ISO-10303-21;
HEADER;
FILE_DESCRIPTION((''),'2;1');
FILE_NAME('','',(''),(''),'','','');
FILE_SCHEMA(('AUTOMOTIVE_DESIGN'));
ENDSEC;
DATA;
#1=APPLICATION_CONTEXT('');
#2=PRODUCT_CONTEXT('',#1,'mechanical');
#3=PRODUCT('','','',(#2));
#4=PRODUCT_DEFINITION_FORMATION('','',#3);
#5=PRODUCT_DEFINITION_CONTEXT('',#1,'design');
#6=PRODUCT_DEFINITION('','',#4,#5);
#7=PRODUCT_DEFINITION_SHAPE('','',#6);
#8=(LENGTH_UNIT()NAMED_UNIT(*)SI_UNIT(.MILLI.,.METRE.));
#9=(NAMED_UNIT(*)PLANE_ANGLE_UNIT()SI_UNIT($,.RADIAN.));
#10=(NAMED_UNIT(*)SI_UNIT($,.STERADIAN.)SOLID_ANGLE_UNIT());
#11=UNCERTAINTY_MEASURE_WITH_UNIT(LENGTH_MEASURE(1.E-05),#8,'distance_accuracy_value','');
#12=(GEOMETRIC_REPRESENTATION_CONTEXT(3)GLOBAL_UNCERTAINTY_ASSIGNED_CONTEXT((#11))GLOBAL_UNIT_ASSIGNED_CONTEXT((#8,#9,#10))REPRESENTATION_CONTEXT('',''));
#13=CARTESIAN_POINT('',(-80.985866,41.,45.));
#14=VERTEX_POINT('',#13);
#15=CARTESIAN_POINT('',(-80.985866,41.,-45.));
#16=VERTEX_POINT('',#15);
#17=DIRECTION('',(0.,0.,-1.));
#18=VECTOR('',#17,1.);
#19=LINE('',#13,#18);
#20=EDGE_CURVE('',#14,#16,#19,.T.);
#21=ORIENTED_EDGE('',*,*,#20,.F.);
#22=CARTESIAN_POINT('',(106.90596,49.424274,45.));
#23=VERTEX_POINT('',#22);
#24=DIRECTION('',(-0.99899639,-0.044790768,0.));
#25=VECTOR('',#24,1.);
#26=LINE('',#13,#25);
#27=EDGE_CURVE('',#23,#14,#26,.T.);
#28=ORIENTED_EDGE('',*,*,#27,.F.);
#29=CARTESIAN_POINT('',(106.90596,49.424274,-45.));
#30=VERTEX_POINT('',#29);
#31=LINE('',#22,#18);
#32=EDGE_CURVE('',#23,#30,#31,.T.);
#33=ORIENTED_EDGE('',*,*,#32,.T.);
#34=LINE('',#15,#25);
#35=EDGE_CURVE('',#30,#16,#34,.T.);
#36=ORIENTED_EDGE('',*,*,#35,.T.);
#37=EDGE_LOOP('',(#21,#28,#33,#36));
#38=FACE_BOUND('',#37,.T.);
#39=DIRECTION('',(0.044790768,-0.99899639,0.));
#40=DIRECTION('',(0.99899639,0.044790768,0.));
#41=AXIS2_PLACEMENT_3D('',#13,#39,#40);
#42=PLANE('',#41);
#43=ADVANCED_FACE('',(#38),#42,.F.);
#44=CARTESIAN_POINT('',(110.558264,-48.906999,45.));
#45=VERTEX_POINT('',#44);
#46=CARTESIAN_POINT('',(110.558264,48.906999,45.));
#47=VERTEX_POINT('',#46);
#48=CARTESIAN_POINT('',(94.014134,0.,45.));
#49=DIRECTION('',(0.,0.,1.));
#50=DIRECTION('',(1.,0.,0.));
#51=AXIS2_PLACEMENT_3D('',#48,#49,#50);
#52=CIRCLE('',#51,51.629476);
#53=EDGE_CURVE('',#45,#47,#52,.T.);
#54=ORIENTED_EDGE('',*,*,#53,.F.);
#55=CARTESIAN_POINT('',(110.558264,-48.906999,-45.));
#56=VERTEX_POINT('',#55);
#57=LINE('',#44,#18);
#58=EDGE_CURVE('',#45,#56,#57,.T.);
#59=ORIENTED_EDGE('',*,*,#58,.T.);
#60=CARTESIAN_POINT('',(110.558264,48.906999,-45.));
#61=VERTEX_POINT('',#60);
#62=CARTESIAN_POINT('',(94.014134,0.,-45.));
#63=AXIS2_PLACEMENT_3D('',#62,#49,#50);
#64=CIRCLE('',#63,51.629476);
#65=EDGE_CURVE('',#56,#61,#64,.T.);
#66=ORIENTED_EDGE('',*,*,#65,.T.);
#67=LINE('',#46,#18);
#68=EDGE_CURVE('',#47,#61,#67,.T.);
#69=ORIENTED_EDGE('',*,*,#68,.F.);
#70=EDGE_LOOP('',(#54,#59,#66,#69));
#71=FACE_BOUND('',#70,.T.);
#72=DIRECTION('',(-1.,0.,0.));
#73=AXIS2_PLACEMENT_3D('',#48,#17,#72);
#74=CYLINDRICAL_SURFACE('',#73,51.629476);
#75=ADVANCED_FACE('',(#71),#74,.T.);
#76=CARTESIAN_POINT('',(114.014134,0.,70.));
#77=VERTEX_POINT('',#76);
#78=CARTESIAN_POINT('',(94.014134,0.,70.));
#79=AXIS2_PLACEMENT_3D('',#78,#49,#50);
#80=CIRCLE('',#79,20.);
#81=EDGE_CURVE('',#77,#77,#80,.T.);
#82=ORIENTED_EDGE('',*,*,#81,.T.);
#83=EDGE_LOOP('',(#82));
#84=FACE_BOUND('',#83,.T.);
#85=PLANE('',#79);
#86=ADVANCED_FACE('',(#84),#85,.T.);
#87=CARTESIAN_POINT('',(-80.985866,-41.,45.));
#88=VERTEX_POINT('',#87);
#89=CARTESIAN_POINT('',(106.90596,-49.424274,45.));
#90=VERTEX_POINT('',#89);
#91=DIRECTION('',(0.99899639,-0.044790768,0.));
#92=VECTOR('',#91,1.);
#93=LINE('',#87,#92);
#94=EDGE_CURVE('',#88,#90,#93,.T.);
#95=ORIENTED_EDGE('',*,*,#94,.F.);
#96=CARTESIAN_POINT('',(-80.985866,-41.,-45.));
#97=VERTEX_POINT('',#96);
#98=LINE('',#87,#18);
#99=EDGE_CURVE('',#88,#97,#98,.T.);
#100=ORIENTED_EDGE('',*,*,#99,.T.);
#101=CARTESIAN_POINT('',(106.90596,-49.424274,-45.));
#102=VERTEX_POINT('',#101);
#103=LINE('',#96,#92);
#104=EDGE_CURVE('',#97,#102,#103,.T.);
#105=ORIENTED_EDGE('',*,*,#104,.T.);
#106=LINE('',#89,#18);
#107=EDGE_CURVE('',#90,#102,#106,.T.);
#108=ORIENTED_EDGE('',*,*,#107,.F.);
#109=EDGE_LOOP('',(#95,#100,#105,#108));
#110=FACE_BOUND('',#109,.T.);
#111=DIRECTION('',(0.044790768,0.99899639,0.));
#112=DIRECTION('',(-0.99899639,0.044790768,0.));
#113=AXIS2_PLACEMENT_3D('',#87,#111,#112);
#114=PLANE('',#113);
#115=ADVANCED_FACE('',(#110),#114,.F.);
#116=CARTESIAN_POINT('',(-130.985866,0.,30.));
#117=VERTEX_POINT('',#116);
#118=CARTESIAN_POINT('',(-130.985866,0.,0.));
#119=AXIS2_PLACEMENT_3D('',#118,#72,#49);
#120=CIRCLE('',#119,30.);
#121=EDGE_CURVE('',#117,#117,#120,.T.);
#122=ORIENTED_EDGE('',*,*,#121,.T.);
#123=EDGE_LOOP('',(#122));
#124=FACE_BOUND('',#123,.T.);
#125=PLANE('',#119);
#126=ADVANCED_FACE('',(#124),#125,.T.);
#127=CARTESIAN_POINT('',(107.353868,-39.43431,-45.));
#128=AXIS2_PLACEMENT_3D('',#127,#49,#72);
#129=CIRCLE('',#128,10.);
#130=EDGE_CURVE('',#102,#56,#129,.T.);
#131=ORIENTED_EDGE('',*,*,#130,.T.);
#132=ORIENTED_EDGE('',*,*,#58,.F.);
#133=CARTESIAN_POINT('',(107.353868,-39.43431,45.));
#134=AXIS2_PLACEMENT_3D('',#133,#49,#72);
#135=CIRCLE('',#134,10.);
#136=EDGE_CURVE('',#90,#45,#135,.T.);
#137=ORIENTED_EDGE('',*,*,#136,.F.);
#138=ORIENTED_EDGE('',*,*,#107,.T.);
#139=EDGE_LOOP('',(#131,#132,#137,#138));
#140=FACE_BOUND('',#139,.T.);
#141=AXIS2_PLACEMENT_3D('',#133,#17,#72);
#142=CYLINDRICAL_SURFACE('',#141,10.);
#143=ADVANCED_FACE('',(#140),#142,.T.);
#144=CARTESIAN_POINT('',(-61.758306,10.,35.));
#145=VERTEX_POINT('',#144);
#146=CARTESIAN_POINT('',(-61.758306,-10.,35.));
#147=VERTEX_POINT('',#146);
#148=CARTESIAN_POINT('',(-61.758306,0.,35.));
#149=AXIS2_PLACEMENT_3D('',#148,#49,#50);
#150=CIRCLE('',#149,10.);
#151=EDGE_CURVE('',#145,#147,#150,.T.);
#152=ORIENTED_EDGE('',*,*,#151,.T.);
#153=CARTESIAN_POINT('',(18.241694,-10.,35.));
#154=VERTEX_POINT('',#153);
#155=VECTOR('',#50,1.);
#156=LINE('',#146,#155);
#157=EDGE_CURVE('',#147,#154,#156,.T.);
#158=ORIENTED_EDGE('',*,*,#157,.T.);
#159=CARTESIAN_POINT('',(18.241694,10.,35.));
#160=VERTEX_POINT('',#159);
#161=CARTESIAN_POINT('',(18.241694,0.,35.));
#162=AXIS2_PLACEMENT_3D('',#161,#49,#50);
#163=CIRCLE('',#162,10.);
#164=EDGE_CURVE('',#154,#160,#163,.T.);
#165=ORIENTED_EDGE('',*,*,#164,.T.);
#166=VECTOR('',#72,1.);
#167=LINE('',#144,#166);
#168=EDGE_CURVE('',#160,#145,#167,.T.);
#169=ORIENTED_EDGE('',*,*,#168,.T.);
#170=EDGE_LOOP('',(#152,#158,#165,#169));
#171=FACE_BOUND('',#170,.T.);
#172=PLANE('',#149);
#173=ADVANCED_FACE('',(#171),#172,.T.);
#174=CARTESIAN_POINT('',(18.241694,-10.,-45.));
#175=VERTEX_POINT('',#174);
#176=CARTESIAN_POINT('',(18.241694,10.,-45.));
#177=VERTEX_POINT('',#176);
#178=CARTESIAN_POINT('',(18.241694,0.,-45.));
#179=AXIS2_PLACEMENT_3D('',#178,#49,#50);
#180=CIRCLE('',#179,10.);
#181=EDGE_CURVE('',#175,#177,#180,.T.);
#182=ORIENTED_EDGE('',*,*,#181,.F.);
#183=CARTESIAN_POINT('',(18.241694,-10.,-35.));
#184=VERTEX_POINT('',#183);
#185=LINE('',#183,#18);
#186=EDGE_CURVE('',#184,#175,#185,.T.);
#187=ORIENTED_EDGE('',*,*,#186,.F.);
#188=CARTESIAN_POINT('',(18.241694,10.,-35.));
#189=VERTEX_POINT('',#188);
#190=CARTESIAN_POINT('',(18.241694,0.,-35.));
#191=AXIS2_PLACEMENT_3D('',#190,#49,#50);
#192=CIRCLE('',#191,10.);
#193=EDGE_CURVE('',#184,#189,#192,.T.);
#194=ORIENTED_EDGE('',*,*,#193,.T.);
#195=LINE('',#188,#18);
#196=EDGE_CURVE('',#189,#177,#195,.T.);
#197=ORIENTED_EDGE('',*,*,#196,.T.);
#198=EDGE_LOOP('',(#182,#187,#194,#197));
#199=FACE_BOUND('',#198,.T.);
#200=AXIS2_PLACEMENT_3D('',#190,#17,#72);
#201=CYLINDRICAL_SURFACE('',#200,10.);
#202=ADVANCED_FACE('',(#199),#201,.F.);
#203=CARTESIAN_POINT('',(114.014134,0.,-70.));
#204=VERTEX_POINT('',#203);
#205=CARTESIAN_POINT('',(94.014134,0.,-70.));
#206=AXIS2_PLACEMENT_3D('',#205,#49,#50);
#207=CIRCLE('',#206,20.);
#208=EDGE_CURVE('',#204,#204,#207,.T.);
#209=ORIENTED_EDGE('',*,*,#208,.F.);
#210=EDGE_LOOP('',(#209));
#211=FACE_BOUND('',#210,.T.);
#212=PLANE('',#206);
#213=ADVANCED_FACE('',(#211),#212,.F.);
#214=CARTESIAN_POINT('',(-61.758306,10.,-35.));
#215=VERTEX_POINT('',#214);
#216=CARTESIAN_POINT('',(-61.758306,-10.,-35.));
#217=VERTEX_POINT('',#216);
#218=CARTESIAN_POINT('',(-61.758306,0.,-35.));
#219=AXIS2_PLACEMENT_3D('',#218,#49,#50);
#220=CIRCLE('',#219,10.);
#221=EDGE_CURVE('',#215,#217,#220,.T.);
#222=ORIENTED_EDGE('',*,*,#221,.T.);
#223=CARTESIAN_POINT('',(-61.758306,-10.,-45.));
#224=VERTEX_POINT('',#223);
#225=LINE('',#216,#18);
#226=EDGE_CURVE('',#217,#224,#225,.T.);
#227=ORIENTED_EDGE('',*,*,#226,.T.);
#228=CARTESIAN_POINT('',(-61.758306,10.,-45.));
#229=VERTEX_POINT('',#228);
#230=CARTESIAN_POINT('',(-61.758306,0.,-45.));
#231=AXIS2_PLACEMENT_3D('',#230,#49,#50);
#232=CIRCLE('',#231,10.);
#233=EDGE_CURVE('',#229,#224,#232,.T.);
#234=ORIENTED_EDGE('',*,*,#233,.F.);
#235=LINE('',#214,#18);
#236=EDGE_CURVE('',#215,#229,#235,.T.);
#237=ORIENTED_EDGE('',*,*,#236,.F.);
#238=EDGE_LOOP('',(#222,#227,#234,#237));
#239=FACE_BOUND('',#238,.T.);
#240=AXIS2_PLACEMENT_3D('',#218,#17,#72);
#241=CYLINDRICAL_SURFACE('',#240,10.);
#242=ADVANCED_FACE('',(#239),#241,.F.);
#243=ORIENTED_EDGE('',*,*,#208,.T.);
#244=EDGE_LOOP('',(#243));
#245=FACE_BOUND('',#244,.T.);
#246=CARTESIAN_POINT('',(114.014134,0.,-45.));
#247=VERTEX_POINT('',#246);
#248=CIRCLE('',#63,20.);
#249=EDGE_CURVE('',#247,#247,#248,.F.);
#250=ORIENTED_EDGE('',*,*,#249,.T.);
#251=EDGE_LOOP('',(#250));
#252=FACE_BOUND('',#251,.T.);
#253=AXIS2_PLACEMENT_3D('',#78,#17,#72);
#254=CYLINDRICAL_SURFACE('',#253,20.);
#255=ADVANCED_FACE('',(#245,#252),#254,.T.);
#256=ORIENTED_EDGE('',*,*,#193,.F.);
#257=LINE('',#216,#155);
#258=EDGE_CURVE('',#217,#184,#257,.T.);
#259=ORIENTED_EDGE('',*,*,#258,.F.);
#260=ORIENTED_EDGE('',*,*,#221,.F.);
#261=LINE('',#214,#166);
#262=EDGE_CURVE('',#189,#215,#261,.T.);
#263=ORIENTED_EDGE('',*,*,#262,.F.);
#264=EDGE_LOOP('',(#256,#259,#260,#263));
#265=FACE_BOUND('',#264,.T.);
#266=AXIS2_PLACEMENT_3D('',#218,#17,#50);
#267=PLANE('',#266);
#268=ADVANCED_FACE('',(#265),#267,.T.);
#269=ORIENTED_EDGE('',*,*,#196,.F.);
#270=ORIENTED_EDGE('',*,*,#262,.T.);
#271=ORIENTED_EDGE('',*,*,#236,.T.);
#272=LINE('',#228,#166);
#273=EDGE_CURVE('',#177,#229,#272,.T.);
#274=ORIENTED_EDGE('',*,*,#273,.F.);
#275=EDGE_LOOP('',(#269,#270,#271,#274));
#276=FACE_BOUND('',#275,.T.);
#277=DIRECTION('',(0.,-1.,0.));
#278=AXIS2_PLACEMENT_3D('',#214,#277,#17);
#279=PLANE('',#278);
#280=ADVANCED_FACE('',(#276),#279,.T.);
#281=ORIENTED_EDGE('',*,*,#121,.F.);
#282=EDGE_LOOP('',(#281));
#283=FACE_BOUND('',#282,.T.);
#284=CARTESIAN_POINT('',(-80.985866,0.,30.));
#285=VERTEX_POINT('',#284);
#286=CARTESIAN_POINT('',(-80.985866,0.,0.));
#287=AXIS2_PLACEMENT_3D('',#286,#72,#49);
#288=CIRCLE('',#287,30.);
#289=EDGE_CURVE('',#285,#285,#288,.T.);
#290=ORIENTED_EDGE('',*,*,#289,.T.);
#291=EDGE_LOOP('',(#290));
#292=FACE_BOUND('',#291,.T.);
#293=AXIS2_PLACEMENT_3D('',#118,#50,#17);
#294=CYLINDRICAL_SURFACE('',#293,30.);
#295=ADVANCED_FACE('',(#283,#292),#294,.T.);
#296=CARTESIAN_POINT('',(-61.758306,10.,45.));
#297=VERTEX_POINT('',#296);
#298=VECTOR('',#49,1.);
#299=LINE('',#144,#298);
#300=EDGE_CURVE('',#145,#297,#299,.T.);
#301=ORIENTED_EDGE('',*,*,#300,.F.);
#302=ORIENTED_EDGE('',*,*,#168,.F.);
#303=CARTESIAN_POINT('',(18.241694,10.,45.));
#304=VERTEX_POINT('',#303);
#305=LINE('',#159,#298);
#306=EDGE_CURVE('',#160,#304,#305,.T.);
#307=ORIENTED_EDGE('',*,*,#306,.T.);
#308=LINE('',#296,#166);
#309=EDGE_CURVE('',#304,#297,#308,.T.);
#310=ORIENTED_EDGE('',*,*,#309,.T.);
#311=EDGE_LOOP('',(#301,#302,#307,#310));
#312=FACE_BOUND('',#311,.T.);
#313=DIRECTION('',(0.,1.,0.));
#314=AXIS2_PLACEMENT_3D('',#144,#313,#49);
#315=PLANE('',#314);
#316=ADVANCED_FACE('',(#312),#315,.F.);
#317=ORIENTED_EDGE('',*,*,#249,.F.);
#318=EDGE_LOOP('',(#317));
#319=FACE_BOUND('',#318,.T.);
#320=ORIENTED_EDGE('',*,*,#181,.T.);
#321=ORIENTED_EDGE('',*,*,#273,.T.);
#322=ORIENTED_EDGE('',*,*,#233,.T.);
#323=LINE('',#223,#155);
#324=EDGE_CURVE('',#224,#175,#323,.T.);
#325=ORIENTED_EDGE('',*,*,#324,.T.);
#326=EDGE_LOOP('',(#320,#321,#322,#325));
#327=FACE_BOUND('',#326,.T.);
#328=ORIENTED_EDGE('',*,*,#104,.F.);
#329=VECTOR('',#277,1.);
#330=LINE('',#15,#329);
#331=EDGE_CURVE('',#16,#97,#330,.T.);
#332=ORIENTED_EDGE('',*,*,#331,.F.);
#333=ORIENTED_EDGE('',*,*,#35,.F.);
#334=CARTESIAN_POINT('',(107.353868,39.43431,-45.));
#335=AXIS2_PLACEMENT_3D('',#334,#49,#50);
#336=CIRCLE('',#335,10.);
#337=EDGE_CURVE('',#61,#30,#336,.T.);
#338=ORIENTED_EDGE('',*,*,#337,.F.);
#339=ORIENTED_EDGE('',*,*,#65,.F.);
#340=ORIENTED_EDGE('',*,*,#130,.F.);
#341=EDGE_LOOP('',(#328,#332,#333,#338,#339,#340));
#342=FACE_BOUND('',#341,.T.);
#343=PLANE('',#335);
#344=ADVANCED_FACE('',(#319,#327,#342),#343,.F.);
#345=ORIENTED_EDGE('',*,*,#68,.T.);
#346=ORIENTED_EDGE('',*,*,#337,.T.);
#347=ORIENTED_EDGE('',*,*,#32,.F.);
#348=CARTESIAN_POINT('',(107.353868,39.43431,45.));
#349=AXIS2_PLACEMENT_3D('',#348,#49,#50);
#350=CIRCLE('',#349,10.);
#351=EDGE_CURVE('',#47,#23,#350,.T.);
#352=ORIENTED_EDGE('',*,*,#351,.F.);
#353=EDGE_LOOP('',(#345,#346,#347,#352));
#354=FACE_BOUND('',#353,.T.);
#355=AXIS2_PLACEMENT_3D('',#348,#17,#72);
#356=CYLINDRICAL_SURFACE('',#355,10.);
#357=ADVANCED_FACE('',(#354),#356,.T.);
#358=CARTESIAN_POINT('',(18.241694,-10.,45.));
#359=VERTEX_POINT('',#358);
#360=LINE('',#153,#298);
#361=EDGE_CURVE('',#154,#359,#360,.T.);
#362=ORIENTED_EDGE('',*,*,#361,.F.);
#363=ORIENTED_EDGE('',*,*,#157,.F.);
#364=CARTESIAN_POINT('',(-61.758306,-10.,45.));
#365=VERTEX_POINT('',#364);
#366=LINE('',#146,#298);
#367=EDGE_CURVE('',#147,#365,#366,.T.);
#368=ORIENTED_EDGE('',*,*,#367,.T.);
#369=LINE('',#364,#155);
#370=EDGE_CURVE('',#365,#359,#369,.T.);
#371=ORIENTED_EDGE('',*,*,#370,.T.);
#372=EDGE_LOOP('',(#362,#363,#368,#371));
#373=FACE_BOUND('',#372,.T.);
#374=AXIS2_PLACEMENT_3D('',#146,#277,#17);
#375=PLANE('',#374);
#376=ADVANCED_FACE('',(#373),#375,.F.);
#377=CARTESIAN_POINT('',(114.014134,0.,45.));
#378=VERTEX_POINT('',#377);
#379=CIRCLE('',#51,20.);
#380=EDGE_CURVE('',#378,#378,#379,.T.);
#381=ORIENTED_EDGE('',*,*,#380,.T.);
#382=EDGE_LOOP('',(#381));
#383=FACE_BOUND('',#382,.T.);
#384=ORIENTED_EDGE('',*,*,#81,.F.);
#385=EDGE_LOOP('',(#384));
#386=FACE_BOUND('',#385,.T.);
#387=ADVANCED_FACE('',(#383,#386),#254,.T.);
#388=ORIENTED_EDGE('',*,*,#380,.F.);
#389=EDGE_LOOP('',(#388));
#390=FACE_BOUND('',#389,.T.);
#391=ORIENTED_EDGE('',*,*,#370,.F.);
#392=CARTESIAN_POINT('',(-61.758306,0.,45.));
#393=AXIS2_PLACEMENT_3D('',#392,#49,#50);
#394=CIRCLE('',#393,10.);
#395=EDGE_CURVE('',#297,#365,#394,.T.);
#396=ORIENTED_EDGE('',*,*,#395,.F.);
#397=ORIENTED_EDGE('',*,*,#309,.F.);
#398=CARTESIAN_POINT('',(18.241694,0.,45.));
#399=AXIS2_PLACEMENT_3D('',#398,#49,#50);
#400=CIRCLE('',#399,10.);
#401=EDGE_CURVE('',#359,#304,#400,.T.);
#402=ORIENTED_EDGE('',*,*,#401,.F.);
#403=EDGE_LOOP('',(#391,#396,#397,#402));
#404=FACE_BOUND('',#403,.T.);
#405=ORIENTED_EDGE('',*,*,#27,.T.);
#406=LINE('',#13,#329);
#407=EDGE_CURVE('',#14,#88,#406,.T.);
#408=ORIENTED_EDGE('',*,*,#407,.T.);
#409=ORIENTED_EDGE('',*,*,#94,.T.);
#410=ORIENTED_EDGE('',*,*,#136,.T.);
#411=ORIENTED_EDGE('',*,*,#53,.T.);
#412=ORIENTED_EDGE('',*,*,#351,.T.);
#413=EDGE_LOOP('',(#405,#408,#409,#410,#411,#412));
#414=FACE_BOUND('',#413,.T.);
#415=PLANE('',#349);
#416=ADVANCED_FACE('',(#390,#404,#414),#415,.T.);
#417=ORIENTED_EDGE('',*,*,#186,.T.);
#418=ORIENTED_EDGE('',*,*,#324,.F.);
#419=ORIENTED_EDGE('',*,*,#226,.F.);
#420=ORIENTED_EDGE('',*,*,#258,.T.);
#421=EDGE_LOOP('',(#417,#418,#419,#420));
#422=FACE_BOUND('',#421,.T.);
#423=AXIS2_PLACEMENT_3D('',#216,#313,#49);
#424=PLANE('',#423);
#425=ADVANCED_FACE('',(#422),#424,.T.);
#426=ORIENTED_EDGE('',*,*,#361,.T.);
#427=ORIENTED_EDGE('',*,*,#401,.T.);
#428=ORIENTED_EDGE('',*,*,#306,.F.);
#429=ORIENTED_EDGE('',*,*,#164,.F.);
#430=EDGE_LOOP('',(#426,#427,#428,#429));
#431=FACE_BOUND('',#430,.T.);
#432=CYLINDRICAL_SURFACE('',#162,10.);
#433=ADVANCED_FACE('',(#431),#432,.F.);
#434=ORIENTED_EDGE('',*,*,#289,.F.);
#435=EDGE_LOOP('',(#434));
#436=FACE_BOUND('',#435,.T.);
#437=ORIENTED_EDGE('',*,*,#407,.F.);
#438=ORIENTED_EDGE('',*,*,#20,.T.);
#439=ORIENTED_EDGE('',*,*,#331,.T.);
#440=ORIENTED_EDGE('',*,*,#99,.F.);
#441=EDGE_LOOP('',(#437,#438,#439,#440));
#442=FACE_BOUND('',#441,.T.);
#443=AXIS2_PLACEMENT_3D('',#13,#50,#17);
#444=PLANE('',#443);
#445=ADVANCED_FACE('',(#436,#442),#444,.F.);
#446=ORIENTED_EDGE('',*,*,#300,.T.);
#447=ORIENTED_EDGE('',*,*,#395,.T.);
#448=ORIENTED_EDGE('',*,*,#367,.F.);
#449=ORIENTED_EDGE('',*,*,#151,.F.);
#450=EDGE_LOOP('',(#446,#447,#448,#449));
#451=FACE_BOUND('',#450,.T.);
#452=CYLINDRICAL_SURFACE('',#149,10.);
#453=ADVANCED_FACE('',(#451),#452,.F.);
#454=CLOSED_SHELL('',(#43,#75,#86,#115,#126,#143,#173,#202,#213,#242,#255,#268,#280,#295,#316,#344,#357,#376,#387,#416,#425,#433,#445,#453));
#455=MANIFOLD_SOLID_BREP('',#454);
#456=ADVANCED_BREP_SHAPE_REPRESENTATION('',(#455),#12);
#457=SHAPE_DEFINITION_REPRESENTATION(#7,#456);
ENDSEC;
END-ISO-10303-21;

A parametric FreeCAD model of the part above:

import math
import FreeCAD as App
import Part
import Sketcher

V = App.Vector

doc = App.newDocument("Part")
body = doc.addObject("PartDesign::Body", "Body")

# Sketch on XY plane
sketch1 = body.newObject("Sketcher::SketchObject", "Sketch")
sketch1.AttachmentSupport = (doc.getObject("XY_Plane"), [""])
sketch1.MapMode = "FlatFace"
sketch1.addGeometry(Part.LineSegment(V(-80.985866, 41, 0), V(-80.985866, -41, 0)), False)
sketch1.addGeometry(Part.LineSegment(V(-80.985866, -41, 0), V(106.90596, -49.424274, 0)), False)
sketch1.addGeometry(Part.ArcOfCircle(Part.Circle(V(107.353868, -39.43431, 0), V(0, 0, 1), 10), math.radians(-92.567181), math.radians(-71.310486)), False)
sketch1.addGeometry(Part.ArcOfCircle(Part.Circle(V(94.014134, 0, 0), V(0, 0, 1), 51.629476), math.radians(-71.310486), math.radians(71.310486)), False)
sketch1.addGeometry(Part.ArcOfCircle(Part.Circle(V(107.353868, 39.43431, 0), V(0, 0, 1), 10), math.radians(71.310486), math.radians(92.567181)), False)
sketch1.addGeometry(Part.LineSegment(V(106.90596, 49.424274, 0), V(-80.985866, 41, 0)), False)
sketch1.addGeometry(Part.Circle(V(94.014134, 0, 0), V(0, 0, 1), 20), False)
sketch1.addConstraint(Sketcher.Constraint("Coincident", 0, 2, 1, 1))
sketch1.addConstraint(Sketcher.Constraint("Tangent", 1, 2, 2, 1))
sketch1.addConstraint(Sketcher.Constraint("Tangent", 2, 2, 3, 1))
sketch1.addConstraint(Sketcher.Constraint("Tangent", 3, 2, 4, 1))
sketch1.addConstraint(Sketcher.Constraint("Tangent", 4, 2, 5, 1))
sketch1.addConstraint(Sketcher.Constraint("Coincident", 5, 2, 0, 1))
sketch1.addConstraint(Sketcher.Constraint("Vertical", 0))
sketch1.addConstraint(Sketcher.Constraint("Coincident", 6, 3, 3, 3))
sketch1.addConstraint(Sketcher.Constraint("Equal", 2, 4))
sketch1.addConstraint(Sketcher.Constraint("Symmetric", 2, 3, 4, 3, -1))
sketch1.addConstraint(Sketcher.Constraint("Vertical", 1, 2, 4, 2))
sketch1.addConstraint(Sketcher.Constraint("Diameter", 6, 40.0))
sketch1.addConstraint(Sketcher.Constraint("Radius", 2, 10.0))
sketch1.addConstraint(Sketcher.Constraint("DistanceY", 0, 2, 0, 1, 82.0))
sketch1.addConstraint(Sketcher.Constraint("DistanceX", 0, 2, 3, 3, 175.0))
sketch1.addConstraint(Sketcher.Constraint("DistanceY", 2, 2, -1, 1, 48.906999))
sketch1.addConstraint(Sketcher.Constraint("Radius", 3, 51.629476))
sketch1.addConstraint(Sketcher.Constraint("DistanceX", -1, 1, 2, 3, 107.353868))
pad1 = body.newObject("PartDesign::Pad", "Pad")
pad1.Profile = sketch1
pad1.Length = 90
pad1.Midplane = True

# Sketch on YZ plane
sketch2 = body.newObject("Sketcher::SketchObject", "Sketch001")
sketch2.AttachmentSupport = (doc.getObject("YZ_Plane"), [""])
sketch2.MapMode = "FlatFace"
sketch2.AttachmentOffset = App.Placement(V(0, 0, -80.985866), App.Rotation())
sketch2.addGeometry(Part.Circle(V(0, 0, 0), V(0, 0, 1), 30), False)
sketch2.addConstraint(Sketcher.Constraint("Coincident", 0, 3, -1, 1))
sketch2.addConstraint(Sketcher.Constraint("Diameter", 0, 60.0))
pad2 = body.newObject("PartDesign::Pad", "Pad001")
pad2.Profile = sketch2
pad2.Length = 50
pad2.Reversed = True

# Sketch on XY plane
sketch3 = body.newObject("Sketcher::SketchObject", "Sketch002")
sketch3.AttachmentSupport = (doc.getObject("XY_Plane"), [""])
sketch3.MapMode = "FlatFace"
sketch3.AttachmentOffset = App.Placement(V(0, 0, 45), App.Rotation())
sketch3.addGeometry(Part.Circle(V(94.014134, 0, 0), V(0, 0, 1), 20), False)
sketch3.addConstraint(Sketcher.Constraint("PointOnObject", 0, 3, -1))
sketch3.addConstraint(Sketcher.Constraint("Diameter", 0, 40.0))
sketch3.addConstraint(Sketcher.Constraint("DistanceX", -1, 1, 0, 3, 94.014134))
pad3 = body.newObject("PartDesign::Pad", "Pad002")
pad3.Profile = sketch3
pad3.Type = "TwoLengths"
pad3.Length = 25
pad3.Length2 = 115

# Sketch on XY plane
sketch4 = body.newObject("Sketcher::SketchObject", "Sketch003")
sketch4.AttachmentSupport = (doc.getObject("XY_Plane"), [""])
sketch4.MapMode = "FlatFace"
sketch4.AttachmentOffset = App.Placement(V(0, 0, 45), App.Rotation())
sketch4.addGeometry(Part.LineSegment(V(18.241694, 10, 0), V(-61.758306, 10, 0)), False)
sketch4.addGeometry(Part.ArcOfCircle(Part.Circle(V(-61.758306, 0, 0), V(0, 0, 1), 10), math.radians(90), math.radians(270)), False)
sketch4.addGeometry(Part.LineSegment(V(-61.758306, -10, 0), V(18.241694, -10, 0)), False)
sketch4.addGeometry(Part.ArcOfCircle(Part.Circle(V(18.241694, 0, 0), V(0, 0, 1), 10), math.radians(-90), math.radians(90)), False)
sketch4.addConstraint(Sketcher.Constraint("Tangent", 0, 2, 1, 1))
sketch4.addConstraint(Sketcher.Constraint("Tangent", 1, 2, 2, 1))
sketch4.addConstraint(Sketcher.Constraint("Tangent", 2, 2, 3, 1))
sketch4.addConstraint(Sketcher.Constraint("Tangent", 3, 2, 0, 1))
sketch4.addConstraint(Sketcher.Constraint("Horizontal", 0))
sketch4.addConstraint(Sketcher.Constraint("Horizontal", 2))
sketch4.addConstraint(Sketcher.Constraint("PointOnObject", 1, 3, -1))
sketch4.addConstraint(Sketcher.Constraint("Radius", 1, 10.0))
sketch4.addConstraint(Sketcher.Constraint("DistanceX", 0, 2, 0, 1, 80.0))
sketch4.addConstraint(Sketcher.Constraint("DistanceX", 1, 3, -1, 1, 61.758306))
pocket1 = body.newObject("PartDesign::Pocket", "Pocket")
pocket1.Profile = sketch4
pocket1.Length = 10
doc.recompute()

mirrored = body.newObject("PartDesign::Mirrored", "Mirrored")
mirrored.Originals = [pocket1]
mirrored.MirrorPlane = (doc.getObject("XY_Plane"), [""])
body.Tip = mirrored

doc.recompute()
